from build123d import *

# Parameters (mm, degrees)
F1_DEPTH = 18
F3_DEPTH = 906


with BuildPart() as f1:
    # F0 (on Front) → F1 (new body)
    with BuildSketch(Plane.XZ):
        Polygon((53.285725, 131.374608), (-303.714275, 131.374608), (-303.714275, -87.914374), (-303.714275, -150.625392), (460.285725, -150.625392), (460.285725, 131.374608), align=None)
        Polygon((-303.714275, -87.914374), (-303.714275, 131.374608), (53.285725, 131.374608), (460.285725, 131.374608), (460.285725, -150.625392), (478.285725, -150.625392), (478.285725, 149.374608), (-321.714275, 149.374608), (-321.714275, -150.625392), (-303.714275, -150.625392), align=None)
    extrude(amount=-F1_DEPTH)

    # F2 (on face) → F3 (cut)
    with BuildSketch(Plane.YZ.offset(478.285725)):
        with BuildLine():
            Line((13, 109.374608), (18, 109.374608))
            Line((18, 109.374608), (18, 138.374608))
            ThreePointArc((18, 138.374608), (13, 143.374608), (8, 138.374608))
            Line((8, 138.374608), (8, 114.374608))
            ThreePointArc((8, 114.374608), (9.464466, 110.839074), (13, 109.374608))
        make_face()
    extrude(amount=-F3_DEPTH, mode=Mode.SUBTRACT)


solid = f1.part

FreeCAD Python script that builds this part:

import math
import FreeCAD as App
import Part
import Sketcher
Q = App.Units.Quantity

doc = App.newDocument("Part")
body = doc.addObject("PartDesign::Body", "Body")

# Sketch on XZ plane
sketch1 = body.newObject("Sketcher::SketchObject", "Sketch")
sketch1.AttachmentSupport = (doc.getObject("XZ_Plane"), [""])
sketch1.MapMode = "FlatFace"
sketch1.addGeometry([
    Part.LineSegment(App.Vector(478, -151, 0), App.Vector(478, 149, 0)),
    Part.LineSegment(App.Vector(478, 149, 0), App.Vector(-322, 149, 0)),
    Part.LineSegment(App.Vector(-322, 149, 0), App.Vector(-322, -151, 0)),
    Part.LineSegment(App.Vector(-322, -151, 0), App.Vector(478, -151, 0)),
], False)
sketch1.addConstraint([
    Sketcher.Constraint("Coincident", 0, 2, 1, 1),
    Sketcher.Constraint("Coincident", 1, 2, 2, 1),
    Sketcher.Constraint("Coincident", 2, 2, 3, 1),
    Sketcher.Constraint("Coincident", 3, 2, 0, 1),
    Sketcher.Constraint("Vertical", 0),
    Sketcher.Constraint("Horizontal", 1),
    Sketcher.Constraint("Vertical", 2),
    Sketcher.Constraint("Horizontal", 3),
    Sketcher.Constraint("DistanceX", 1, 2, 1, 1, Q("800 mm")),
    Sketcher.Constraint("DistanceY", 0, 1, 0, 2, Q("300 mm")),
    Sketcher.Constraint("DistanceY", -1, 1, 0, 2, Q("149.374608 mm")),
    Sketcher.Constraint("DistanceX", -1, 1, 0, 2, Q("478.285725 mm")),
])
pad1 = body.newObject("PartDesign::Pad", "Pad")
pad1.Profile = sketch1
pad1.Length = 18
pad1.Reversed = True

# Sketch on YZ plane
sketch2 = body.newObject("Sketcher::SketchObject", "Sketch001")
sketch2.AttachmentSupport = (doc.getObject("YZ_Plane"), [""])
sketch2.MapMode = "FlatFace"
sketch2.AttachmentOffset = App.Placement(App.Vector(0, 0, 478.285725), App.Rotation())
sketch2.addGeometry([
    Part.LineSegment(App.Vector(13, 109.4, 0), App.Vector(18, 109.4, 0)),  # 0
    Part.LineSegment(App.Vector(18, 109.4, 0), App.Vector(18, 138.4, 0)),  # 1
    Part.ArcOfCircle(Part.Circle(App.Vector(13, 138.4, 0), App.Vector(0, 0, 1), 5), math.radians(0), math.radians(180)),  # 2
    Part.LineSegment(App.Vector(8, 138.4, 0), App.Vector(8, 114.4, 0)),  # 3
    Part.ArcOfCircle(Part.Circle(App.Vector(13, 114.4, 0), App.Vector(0, 0, 1), 5), math.radians(180), math.radians(270)),  # 4
], False)
sketch2.addConstraint([
    Sketcher.Constraint("Coincident", 0, 2, 1, 1),
    Sketcher.Constraint("Tangent", 1, 2, 2, 1),
    Sketcher.Constraint("Tangent", 2, 2, 3, 1),
    Sketcher.Constraint("Tangent", 3, 2, 4, 1),
    Sketcher.Constraint("Tangent", 4, 2, 0, 1),
    Sketcher.Constraint("Horizontal", 0),
    Sketcher.Constraint("Vertical", 1),
    Sketcher.Constraint("Vertical", 3),
    Sketcher.Constraint("Equal", 2, 4),
    Sketcher.Constraint("Radius", 2, Q("5 mm")),
    Sketcher.Constraint("DistanceY", 1, 1, 1, 2, Q("29 mm")),
    Sketcher.Constraint("DistanceX", -1, 1, 2, 3, Q("13 mm")),
    Sketcher.Constraint("DistanceY", -1, 1, 2, 3, Q("138.374608 mm")),
])
pocket1 = body.newObject("PartDesign::Pocket", "Pocket")
pocket1.Profile = sketch2
pocket1.Length = 906

doc.recompute()
